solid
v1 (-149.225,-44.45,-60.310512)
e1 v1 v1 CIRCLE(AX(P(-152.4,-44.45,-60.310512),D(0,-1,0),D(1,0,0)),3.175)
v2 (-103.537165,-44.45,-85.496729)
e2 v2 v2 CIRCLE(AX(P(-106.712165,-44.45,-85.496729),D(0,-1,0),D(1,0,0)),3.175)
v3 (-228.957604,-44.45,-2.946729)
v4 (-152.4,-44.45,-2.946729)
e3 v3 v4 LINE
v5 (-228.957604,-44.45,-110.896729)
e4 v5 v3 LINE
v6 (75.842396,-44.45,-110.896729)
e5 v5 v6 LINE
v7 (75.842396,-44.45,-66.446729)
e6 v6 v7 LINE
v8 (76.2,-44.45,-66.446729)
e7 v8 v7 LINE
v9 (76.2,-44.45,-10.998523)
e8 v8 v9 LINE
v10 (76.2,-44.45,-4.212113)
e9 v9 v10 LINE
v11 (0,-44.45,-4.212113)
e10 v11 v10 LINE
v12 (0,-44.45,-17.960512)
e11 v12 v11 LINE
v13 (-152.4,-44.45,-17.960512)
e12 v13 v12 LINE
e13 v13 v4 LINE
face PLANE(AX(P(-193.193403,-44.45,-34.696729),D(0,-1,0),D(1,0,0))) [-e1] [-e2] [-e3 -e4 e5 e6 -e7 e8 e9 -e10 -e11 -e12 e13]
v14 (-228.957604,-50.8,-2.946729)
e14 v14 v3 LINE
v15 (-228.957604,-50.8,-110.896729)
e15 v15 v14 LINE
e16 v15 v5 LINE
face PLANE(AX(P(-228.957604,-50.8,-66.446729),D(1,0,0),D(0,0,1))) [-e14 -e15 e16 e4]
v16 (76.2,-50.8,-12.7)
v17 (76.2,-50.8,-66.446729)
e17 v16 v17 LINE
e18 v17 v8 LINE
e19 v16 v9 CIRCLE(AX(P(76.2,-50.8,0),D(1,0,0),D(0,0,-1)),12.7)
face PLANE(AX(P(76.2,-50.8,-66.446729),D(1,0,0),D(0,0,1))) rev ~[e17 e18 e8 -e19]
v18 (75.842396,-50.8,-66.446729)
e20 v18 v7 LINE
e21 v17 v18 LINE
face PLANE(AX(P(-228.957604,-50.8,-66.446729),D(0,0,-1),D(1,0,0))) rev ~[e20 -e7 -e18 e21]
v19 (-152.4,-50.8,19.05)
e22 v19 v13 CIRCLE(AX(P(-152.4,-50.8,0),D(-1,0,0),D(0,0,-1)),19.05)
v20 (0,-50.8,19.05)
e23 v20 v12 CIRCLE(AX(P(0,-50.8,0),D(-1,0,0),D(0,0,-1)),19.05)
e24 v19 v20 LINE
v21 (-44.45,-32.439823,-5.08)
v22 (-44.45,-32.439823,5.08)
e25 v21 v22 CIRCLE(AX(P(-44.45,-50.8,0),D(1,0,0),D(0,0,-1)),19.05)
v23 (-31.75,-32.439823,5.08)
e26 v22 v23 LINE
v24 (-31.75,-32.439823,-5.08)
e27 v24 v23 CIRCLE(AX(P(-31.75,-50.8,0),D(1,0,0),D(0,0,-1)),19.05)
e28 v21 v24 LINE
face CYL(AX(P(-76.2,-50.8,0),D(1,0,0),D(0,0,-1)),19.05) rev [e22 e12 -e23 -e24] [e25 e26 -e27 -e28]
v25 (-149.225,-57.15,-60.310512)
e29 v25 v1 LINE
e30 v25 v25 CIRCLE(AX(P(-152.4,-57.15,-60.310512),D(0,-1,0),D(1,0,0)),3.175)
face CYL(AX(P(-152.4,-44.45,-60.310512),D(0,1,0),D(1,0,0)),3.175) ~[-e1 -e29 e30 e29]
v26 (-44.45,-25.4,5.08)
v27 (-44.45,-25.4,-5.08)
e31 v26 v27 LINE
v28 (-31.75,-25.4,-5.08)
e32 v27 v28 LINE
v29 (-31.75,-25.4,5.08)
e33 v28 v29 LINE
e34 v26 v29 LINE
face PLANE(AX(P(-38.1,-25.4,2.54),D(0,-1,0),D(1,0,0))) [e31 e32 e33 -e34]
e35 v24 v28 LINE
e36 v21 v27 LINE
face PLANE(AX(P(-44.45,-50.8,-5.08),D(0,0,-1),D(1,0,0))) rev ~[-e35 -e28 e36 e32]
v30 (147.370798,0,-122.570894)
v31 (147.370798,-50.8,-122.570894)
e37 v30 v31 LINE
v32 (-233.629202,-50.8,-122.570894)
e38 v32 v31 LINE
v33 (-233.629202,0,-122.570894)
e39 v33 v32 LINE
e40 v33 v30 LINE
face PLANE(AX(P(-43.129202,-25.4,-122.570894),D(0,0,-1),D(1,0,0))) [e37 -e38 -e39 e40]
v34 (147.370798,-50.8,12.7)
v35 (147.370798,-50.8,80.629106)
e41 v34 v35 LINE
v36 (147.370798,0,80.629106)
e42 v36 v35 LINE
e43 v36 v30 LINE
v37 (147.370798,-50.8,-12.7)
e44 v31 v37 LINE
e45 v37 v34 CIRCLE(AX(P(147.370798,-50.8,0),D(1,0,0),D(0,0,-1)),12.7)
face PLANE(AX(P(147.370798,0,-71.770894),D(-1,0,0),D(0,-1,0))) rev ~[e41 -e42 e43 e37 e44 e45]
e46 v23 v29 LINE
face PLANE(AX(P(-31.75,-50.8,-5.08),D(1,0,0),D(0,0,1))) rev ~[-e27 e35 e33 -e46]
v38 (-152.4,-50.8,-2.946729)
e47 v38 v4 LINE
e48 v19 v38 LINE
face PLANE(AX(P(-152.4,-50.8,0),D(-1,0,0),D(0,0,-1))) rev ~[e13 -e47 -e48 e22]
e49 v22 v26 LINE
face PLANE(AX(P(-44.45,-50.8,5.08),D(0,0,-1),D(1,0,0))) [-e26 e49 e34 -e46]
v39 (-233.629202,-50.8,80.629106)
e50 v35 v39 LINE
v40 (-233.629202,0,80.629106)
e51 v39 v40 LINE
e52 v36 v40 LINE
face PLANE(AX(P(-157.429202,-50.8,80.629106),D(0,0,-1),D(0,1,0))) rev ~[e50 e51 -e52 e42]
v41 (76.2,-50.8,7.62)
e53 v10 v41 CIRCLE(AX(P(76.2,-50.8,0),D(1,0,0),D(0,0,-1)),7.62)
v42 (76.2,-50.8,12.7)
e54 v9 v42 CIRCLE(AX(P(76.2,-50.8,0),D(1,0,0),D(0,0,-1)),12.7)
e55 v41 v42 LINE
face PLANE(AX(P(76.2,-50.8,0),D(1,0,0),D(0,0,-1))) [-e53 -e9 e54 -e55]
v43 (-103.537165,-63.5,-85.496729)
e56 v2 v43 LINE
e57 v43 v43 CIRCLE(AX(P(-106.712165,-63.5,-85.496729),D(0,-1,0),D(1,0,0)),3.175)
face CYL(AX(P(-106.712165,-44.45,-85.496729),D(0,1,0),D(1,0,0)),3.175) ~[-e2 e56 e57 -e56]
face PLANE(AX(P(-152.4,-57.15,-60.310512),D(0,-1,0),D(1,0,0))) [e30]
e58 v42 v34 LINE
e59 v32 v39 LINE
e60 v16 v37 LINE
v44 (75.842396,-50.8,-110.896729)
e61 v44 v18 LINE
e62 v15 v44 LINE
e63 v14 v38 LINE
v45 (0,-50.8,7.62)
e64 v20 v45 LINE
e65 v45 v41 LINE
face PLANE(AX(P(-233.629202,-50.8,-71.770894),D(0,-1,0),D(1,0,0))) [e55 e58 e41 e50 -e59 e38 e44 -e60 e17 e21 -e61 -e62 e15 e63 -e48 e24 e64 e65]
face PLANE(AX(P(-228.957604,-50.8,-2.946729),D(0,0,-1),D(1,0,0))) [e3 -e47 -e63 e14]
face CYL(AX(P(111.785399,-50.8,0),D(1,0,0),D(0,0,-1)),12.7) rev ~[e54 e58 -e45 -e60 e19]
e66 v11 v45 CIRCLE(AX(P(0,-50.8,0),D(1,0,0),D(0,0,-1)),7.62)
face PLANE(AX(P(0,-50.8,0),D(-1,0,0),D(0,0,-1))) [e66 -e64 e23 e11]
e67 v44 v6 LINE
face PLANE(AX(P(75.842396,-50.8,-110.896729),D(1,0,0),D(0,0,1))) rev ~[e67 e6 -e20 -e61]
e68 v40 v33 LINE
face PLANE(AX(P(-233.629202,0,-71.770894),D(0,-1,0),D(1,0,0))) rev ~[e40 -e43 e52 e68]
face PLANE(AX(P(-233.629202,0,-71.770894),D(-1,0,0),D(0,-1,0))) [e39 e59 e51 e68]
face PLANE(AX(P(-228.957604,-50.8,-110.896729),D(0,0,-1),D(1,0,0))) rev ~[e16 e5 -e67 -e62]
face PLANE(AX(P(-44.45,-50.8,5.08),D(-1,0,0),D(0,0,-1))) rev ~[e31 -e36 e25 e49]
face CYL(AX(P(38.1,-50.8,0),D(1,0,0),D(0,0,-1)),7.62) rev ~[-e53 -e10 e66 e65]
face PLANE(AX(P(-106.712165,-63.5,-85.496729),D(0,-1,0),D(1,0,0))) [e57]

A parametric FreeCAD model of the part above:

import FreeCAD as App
import Part
import Sketcher

V = App.Vector
Q = App.Units.Quantity


def add_polygon(sketch, points):
    """Adds a closed chain of lines whose ends are joined by coincident constraints."""
    first, n = sketch.GeometryCount, len(points)
    for a, b in zip(points, points[1:] + points[:1]):
        sketch.addGeometry(Part.LineSegment(App.Vector(*a, 0), App.Vector(*b, 0)), False)
    for i in range(n):
        sketch.addConstraint(Sketcher.Constraint("Coincident", first + i, 2, first + (i + 1) % n, 1))

doc = App.newDocument("Part")
params = doc.addObject("Spreadsheet::Sheet", "Params")
for row, (alias, value) in enumerate([
    ("sketch1_width", "12 in"),
    ("sketch1_height", "6 in"),
    ("pad1_length", "2 in"),
    ("sketch2_width", "6 in"),
    ("sketch2_height", "0.75 in"),
    ("groove_angle", "360 deg"),
    ("sketch3_width", "0.5 in"),
    ("sketch3_height", "0.4 in"),
    ("pocket1_length", "1 in"),
    ("sketch4_width", "3 in"),
    ("sketch4_height", "0.3 in"),
    ("groove2_angle", "360 deg"),
    ("sketch5_height", "2.5 in"),
    ("pocket2_length", "0.25 in"),
    ("sketch6_width", "2 in"),
    ("sketch6_height", "6 in"),
    ("pad2_length", "3 in"),
    ("sketch7_height", "2.5 in"),
    ("pocket3_length", "0.25 in"),
    ("sketch8_diameter", "0.25 in"),
    ("pad3_length", "0.5 in"),
    ("sketch9_width", "15 in"),
    ("sketch9_height", "2 in"),
    ("pad4_length", "2 in"),
    ("sketch10_width", "12 in"),
    ("sketch10_height", "1.75 in"),
    ("pocket4_length", "0.25 in"),
    ("sketch11_diameter", "0.25 in"),
    ("pad5_length", "0.75 in"),
    ("sketch12_height", "0.5 in"),
    ("sketch12_width", "2.8019999 in"),
    ("groove3_angle", "360 deg"),
    ("sketch13_diameter", "0.25 in"),
    ("pad6_length", "0.25 in"),
], start=1):
    params.set(f"A{row}", alias)
    params.set(f"B{row}", "=" + value)
    params.setAlias(f"B{row}", alias)

body = doc.addObject("PartDesign::Body", "Body")

sketch1 = body.newObject("Sketcher::SketchObject", "Sketch")
sketch1.AttachmentSupport = (doc.getObject("XZ_Plane"), [""])
sketch1.MapMode = "FlatFace"
add_polygon(sketch1, [(-157.429202, 80.629106), (-157.429202, -71.770894), (147.370798, -71.770894), (147.370798, 80.629106)])
sketch1.addConstraint([
    Sketcher.Constraint("Vertical", 0),
    Sketcher.Constraint("Horizontal", 1),
    Sketcher.Constraint("Vertical", 2),
    Sketcher.Constraint("Horizontal", 3),
    Sketcher.Constraint("DistanceX", 1, 1, 1, 2, Q("12 in")),
    Sketcher.Constraint("DistanceY", 0, 2, 0, 1, Q("6 in")),
    Sketcher.Constraint("DistanceX", 0, 2, -1, 1, Q("6.1980001 in")),
    Sketcher.Constraint("DistanceY", 0, 2, -1, 1, Q("71.770894 mm")),
])
sketch1.setExpression("Constraints[8]", "Params.sketch1_width")
sketch1.setExpression("Constraints[9]", "Params.sketch1_height")
pad1 = body.newObject("PartDesign::Pad", "Pad")
pad1.Profile = sketch1
pad1.setExpression("Length", "Params.pad1_length")

sketch2 = body.newObject("Sketcher::SketchObject", "Sketch001")
sketch2.AttachmentSupport = (doc.getObject("XZ_Plane"), [""])
sketch2.MapMode = "FlatFace"
sketch2.AttachmentOffset = App.Placement(V(0, 0, 2 * 25.4), App.Rotation())
add_polygon(sketch2, [(-152.4, 0), (-152.4, -19.05), (0, -19.05), (0, 0)])
sketch2.addConstraint([
    Sketcher.Constraint("Vertical", 0),
    Sketcher.Constraint("Horizontal", 1),
    Sketcher.Constraint("Vertical", 2),
    Sketcher.Constraint("Horizontal", 3),
    Sketcher.Constraint("Coincident", 2, 2, -1, 1),
    Sketcher.Constraint("DistanceX", 1, 1, 1, 2, Q("6 in")),
    Sketcher.Constraint("DistanceY", 0, 2, 0, 1, Q("0.75 in")),
])
sketch2.setExpression("Constraints[9]", "Params.sketch2_width")
sketch2.setExpression("Constraints[10]", "Params.sketch2_height")
groove = body.newObject("PartDesign::Groove", "Groove")
groove.Profile = sketch2
groove.ReferenceAxis = (sketch2, ["H_Axis"])
groove.setExpression("Angle", "Params.groove_angle")

sketch3 = body.newObject("Sketcher::SketchObject", "Sketch002")
sketch3.AttachmentSupport = (doc.getObject("XZ_Plane"), [""])
sketch3.MapMode = "FlatFace"
sketch3.AttachmentOffset = App.Placement(V(0, 0, 2 * 25.4), App.Rotation())
add_polygon(sketch3, [(-44.45, 5.08), (-44.45, -5.08), (-31.75, -5.08), (-31.75, 5.08)])
sketch3.addConstraint([
    Sketcher.Constraint("Vertical", 0),
    Sketcher.Constraint("Horizontal", 1),
    Sketcher.Constraint("Vertical", 2),
    Sketcher.Constraint("Horizontal", 3),
    Sketcher.Constraint("DistanceX", 1, 1, 1, 2, Q("0.5 in")),
    Sketcher.Constraint("DistanceY", 0, 2, 0, 1, Q("0.4 in")),
    Sketcher.Constraint("DistanceY", 0, 2, -1, 1, Q("0.2 in")),
    Sketcher.Constraint("DistanceX", 0, 2, -1, 1, Q("1.75 in")),
])
sketch3.setExpression("Constraints[8]", "Params.sketch3_width")
sketch3.setExpression("Constraints[9]", "Params.sketch3_height")
pocket1 = body.newObject("PartDesign::Pocket", "Pocket")
pocket1.Profile = sketch3
pocket1.setExpression("Length", "Params.pocket1_length")

sketch4 = body.newObject("Sketcher::SketchObject", "Sketch003")
sketch4.AttachmentSupport = (doc.getObject("XZ_Plane"), [""])
sketch4.MapMode = "FlatFace"
sketch4.AttachmentOffset = App.Placement(V(0, 0, 2 * 25.4), App.Rotation())
add_polygon(sketch4, [(0, 0), (0, -7.62), (76.2, -7.62), (76.2, 0)])
sketch4.addConstraint([
    Sketcher.Constraint("Vertical", 0),
    Sketcher.Constraint("Horizontal", 1),
    Sketcher.Constraint("Vertical", 2),
    Sketcher.Constraint("Horizontal", 3),
    Sketcher.Constraint("Coincident", 3, 2, -1, 1),
    Sketcher.Constraint("DistanceX", 1, 1, 1, 2, Q("3 in")),
    Sketcher.Constraint("DistanceY", 0, 2, 0, 1, Q("0.3 in")),
])
sketch4.setExpression("Constraints[9]", "Params.sketch4_width")
sketch4.setExpression("Constraints[10]", "Params.sketch4_height")
groove2 = body.newObject("PartDesign::Groove", "Groove001")
groove2.Profile = sketch4
groove2.ReferenceAxis = (sketch4, ["H_Axis"])
groove2.setExpression("Angle", "Params.groove2_angle")

sketch5 = body.newObject("Sketcher::SketchObject", "Sketch004")
sketch5.AttachmentSupport = (doc.getObject("XZ_Plane"), [""])
sketch5.MapMode = "FlatFace"
sketch5.AttachmentOffset = App.Placement(V(0, 0, 2 * 25.4), App.Rotation())
add_polygon(sketch5, [(76.2, -66.446729), (76.2, -2.946729), (-166.762933, -2.946729), (-166.762933, -66.446729)])
sketch5.addConstraint([
    Sketcher.Constraint("Vertical", 0),
    Sketcher.Constraint("Horizontal", 1),
    Sketcher.Constraint("Vertical", 2),
    Sketcher.Constraint("Horizontal", 3),
    Sketcher.Constraint("DistanceY", 0, 1, 0, 2, Q("2.5 in")),
    Sketcher.Constraint("DistanceX", -1, 1, 0, 2, Q("3 in")),
    Sketcher.Constraint("DistanceX", 1, 2, 1, 1, Q("242.962933 mm")),
    Sketcher.Constraint("DistanceY", 0, 2, -1, 1, Q("2.946729 mm")),
])
sketch5.setExpression("Constraints[8]", "Params.sketch5_height")
pocket2 = body.newObject("PartDesign::Pocket", "Pocket001")
pocket2.Profile = sketch5
pocket2.setExpression("Length", "Params.pocket2_length")

sketch6 = body.newObject("Sketcher::SketchObject", "Sketch005")
sketch6.AttachmentSupport = (doc.getObject("YZ_Plane"), [""])
sketch6.MapMode = "FlatFace"
sketch6.AttachmentOffset = App.Placement(V(0, 0, -6.1980001 * 25.4), App.Rotation())
add_polygon(sketch6, [(-50.8, -71.770894), (-50.8, 80.629106), (0, 80.629106), (0, -71.770894)])
sketch6.addConstraint([
    Sketcher.Constraint("Vertical", 0),
    Sketcher.Constraint("Horizontal", 1),
    Sketcher.Constraint("Vertical", 2),
    Sketcher.Constraint("Horizontal", 3),
    Sketcher.Constraint("PointOnObject", 1, 2, -2),
    Sketcher.Constraint("DistanceX", 1, 1, 1, 2, Q("2 in")),
    Sketcher.Constraint("DistanceY", 0, 1, 0, 2, Q("6 in")),
    Sketcher.Constraint("DistanceY", -1, 1, 0, 2, Q("80.629106 mm")),
])
sketch6.setExpression("Constraints[9]", "Params.sketch6_width")
sketch6.setExpression("Constraints[10]", "Params.sketch6_height")
pad2 = body.newObject("PartDesign::Pad", "Pad001")
pad2.Profile = sketch6
pad2.setExpression("Length", "Params.pad2_length")
pad2.Reversed = True

sketch7 = body.newObject("Sketcher::SketchObject", "Sketch006")
sketch7.AttachmentSupport = (doc.getObject("XZ_Plane"), [""])
sketch7.MapMode = "FlatFace"
sketch7.AttachmentOffset = App.Placement(V(0, 0, 2 * 25.4), App.Rotation())
add_polygon(sketch7, [(-228.957604, -2.946729), (-228.957604, -66.446729), (-157.429202, -66.446729), (-157.429202, -2.946729)])
sketch7.addConstraint([
    Sketcher.Constraint("Vertical", 0),
    Sketcher.Constraint("Horizontal", 1),
    Sketcher.Constraint("Vertical", 2),
    Sketcher.Constraint("Horizontal", 3),
    Sketcher.Constraint("DistanceY", 0, 2, 0, 1, Q("2.5 in")),
    Sketcher.Constraint("DistanceX", 1, 2, -1, 1, Q("6.1980001 in")),
    Sketcher.Constraint("DistanceX", 1, 1, 1, 2, Q("71.528402 mm")),
    Sketcher.Constraint("DistanceY", 0, 2, -1, 1, Q("66.446729 mm")),
])
sketch7.setExpression("Constraints[8]", "Params.sketch7_height")
pocket3 = body.newObject("PartDesign::Pocket", "Pocket002")
pocket3.Profile = sketch7
pocket3.setExpression("Length", "Params.pocket3_length")

sketch8 = body.newObject("Sketcher::SketchObject", "Sketch007")
sketch8.AttachmentSupport = (doc.getObject("XZ_Plane"), [""])
sketch8.MapMode = "FlatFace"
sketch8.AttachmentOffset = App.Placement(V(0, 0, 1.75 * 25.4), App.Rotation())
sketch8.addGeometry(Part.Circle(V(-152.4, -60.310512, 0), V(0, 0, 1), 3.175), False)
sketch8.addConstraint([
    Sketcher.Constraint("Diameter", 0, Q("0.25 in")),
    Sketcher.Constraint("DistanceX", 0, 3, -1, 1, Q("6 in")),
    Sketcher.Constraint("DistanceY", 0, 3, -1, 1, Q("60.310512 mm")),
])
sketch8.setExpression("Constraints[0]", "Params.sketch8_diameter")
pad3 = body.newObject("PartDesign::Pad", "Pad002")
pad3.Profile = sketch8
pad3.setExpression("Length", "Params.pad3_length")

sketch9 = body.newObject("Sketcher::SketchObject", "Sketch008")
sketch9.AttachmentSupport = (doc.getObject("XY_Plane"), [""])
sketch9.MapMode = "FlatFace"
sketch9.AttachmentOffset = App.Placement(V(0, 0, -71.770894), App.Rotation())
add_polygon(sketch9, [(-233.629202, -50.8), (-233.629202, 0), (147.370798, 0), (147.370798, -50.8)])
sketch9.addConstraint([
    Sketcher.Constraint("Vertical", 0),
    Sketcher.Constraint("Horizontal", 1),
    Sketcher.Constraint("Vertical", 2),
    Sketcher.Constraint("Horizontal", 3),
    Sketcher.Constraint("PointOnObject", 0, 2, -1),
    Sketcher.Constraint("DistanceX", 1, 1, 1, 2, Q("15 in")),
    Sketcher.Constraint("DistanceY", 0, 1, 0, 2, Q("2 in")),
    Sketcher.Constraint("DistanceX", 0, 2, -1, 1, Q("9.1980001 in")),
])
sketch9.setExpression("Constraints[9]", "Params.sketch9_width")
sketch9.setExpression("Constraints[10]", "Params.sketch9_height")
pad4 = body.newObject("PartDesign::Pad", "Pad003")
pad4.Profile = sketch9
pad4.setExpression("Length", "Params.pad4_length")
pad4.Reversed = True

sketch10 = body.newObject("Sketcher::SketchObject", "Sketch009")
sketch10.AttachmentSupport = (doc.getObject("XZ_Plane"), [""])
sketch10.MapMode = "FlatFace"
sketch10.AttachmentOffset = App.Placement(V(0, 0, 2 * 25.4), App.Rotation())
add_polygon(sketch10, [(-228.957604, -66.446729), (-228.957604, -110.896729), (75.842396, -110.896729), (75.842396, -66.446729)])
sketch10.addConstraint([
    Sketcher.Constraint("Vertical", 0),
    Sketcher.Constraint("Horizontal", 1),
    Sketcher.Constraint("Vertical", 2),
    Sketcher.Constraint("Horizontal", 3),
    Sketcher.Constraint("DistanceX", 1, 1, 1, 2, Q("12 in")),
    Sketcher.Constraint("DistanceY", 0, 2, 0, 1, Q("1.75 in")),
    Sketcher.Constraint("DistanceY", 0, 2, -1, 1, Q("110.896729 mm")),
    Sketcher.Constraint("DistanceX", 0, 2, -1, 1, Q("228.957604 mm")),
])
sketch10.setExpression("Constraints[8]", "Params.sketch10_width")
sketch10.setExpression("Constraints[9]", "Params.sketch10_height")
pocket4 = body.newObject("PartDesign::Pocket", "Pocket003")
pocket4.Profile = sketch10
pocket4.setExpression("Length", "Params.pocket4_length")

sketch11 = body.newObject("Sketcher::SketchObject", "Sketch010")
sketch11.AttachmentSupport = (doc.getObject("XZ_Plane"), [""])
sketch11.MapMode = "FlatFace"
sketch11.AttachmentOffset = App.Placement(V(0, 0, 1.75 * 25.4), App.Rotation())
sketch11.addGeometry(Part.Circle(V(-106.712165, -85.496729, 0), V(0, 0, 1), 3.175), False)
sketch11.addConstraint([
    Sketcher.Constraint("Diameter", 0, Q("0.25 in")),
    Sketcher.Constraint("DistanceY", 0, 3, -1, 1, Q("85.496729 mm")),
    Sketcher.Constraint("DistanceX", 0, 3, -1, 1, Q("106.712165 mm")),
])
sketch11.setExpression("Constraints[0]", "Params.sketch11_diameter")
pad5 = body.newObject("PartDesign::Pad", "Pad004")
pad5.Profile = sketch11
pad5.setExpression("Length", "Params.pad5_length")

sketch12 = body.newObject("Sketcher::SketchObject", "Sketch011")
sketch12.AttachmentSupport = (doc.getObject("XZ_Plane"), [""])
sketch12.MapMode = "FlatFace"
sketch12.AttachmentOffset = App.Placement(V(0, 0, 2 * 25.4), App.Rotation())
add_polygon(sketch12, [(76.2, 0), (76.2, -12.7), (147.370798, -12.7), (147.370798, 0)])
sketch12.addConstraint([
    Sketcher.Constraint("Vertical", 0),
    Sketcher.Constraint("Horizontal", 1),
    Sketcher.Constraint("Vertical", 2),
    Sketcher.Constraint("Horizontal", 3),
    Sketcher.Constraint("PointOnObject", 2, 2, -1),
    Sketcher.Constraint("DistanceY", 0, 2, 0, 1, Q("0.5 in")),
    Sketcher.Constraint("DistanceX", -1, 1, 0, 2, Q("3 in")),
    Sketcher.Constraint("DistanceX", 1, 1, 1, 2, Q("2.8019999 in")),
])
sketch12.setExpression("Constraints[9]", "Params.sketch12_height")
sketch12.setExpression("Constraints[11]", "Params.sketch12_width")
groove3 = body.newObject("PartDesign::Groove", "Groove002")
groove3.Profile = sketch12
groove3.ReferenceAxis = (sketch12, ["H_Axis"])
groove3.setExpression("Angle", "Params.groove3_angle")

sketch13 = body.newObject("Sketcher::SketchObject", "Sketch012")
sketch13.AttachmentSupport = (doc.getObject("XZ_Plane"), [""])
sketch13.MapMode = "FlatFace"
sketch13.AttachmentOffset = App.Placement(V(0, 0, 1.75 * 25.4), App.Rotation())
sketch13.addGeometry(Part.Circle(V(-152.4, -60.310512, 0), V(0, 0, 1), 3.175), False)
sketch13.addConstraint([
    Sketcher.Constraint("Diameter", 0, Q("0.25 in")),
    Sketcher.Constraint("DistanceX", 0, 3, -1, 1, Q("6 in")),
    Sketcher.Constraint("DistanceY", 0, 3, -1, 1, Q("60.310512 mm")),
])
sketch13.setExpression("Constraints[0]", "Params.sketch13_diameter")
pad6 = body.newObject("PartDesign::Pad", "Pad005")
pad6.Profile = sketch13
pad6.setExpression("Length", "Params.pad6_length")

doc.recompute()
